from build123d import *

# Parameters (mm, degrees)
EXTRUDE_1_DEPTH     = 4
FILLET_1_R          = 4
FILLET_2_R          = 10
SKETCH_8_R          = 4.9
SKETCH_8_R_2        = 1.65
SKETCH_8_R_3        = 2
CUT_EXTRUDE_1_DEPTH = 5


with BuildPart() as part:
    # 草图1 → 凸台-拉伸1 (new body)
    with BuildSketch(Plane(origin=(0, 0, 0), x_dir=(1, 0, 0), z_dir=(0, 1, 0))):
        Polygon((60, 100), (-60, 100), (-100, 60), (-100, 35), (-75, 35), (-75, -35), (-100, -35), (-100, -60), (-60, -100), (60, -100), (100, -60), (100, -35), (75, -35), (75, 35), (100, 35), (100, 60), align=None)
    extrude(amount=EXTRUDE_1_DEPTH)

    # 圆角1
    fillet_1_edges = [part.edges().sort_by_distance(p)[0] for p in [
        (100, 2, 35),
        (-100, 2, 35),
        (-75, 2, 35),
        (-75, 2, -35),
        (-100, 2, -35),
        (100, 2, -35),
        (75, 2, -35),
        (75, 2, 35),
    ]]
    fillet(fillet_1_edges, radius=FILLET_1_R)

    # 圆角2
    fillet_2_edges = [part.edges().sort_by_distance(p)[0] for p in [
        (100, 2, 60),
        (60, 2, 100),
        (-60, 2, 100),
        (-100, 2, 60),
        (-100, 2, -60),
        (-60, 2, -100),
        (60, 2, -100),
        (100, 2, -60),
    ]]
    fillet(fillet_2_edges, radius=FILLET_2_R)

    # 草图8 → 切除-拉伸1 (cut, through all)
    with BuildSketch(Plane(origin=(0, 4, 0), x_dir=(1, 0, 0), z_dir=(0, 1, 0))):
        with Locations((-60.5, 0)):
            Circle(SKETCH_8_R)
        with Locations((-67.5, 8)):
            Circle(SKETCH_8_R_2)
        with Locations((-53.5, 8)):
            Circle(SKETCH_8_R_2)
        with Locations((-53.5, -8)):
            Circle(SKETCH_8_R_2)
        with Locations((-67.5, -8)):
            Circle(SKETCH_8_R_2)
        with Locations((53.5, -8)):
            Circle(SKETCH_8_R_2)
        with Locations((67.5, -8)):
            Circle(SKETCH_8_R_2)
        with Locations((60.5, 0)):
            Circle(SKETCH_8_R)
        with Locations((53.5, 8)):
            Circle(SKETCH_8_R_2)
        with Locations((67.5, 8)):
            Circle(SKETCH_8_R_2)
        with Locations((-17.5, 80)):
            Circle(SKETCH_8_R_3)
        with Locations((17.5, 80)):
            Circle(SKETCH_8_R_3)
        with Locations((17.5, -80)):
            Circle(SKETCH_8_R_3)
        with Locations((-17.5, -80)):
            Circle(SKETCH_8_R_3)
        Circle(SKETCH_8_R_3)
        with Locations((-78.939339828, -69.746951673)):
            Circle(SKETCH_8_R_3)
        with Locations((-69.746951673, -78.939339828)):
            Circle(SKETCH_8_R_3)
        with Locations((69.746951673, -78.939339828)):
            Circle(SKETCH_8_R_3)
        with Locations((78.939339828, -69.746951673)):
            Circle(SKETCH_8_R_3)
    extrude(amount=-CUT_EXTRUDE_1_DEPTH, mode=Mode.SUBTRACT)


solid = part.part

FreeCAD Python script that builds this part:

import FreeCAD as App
import Part
import Sketcher
from FreeCAD import Vector
Q = App.Units.Quantity


def edges_at(feature, points):
    """Names of the edges that pass closest to the given points."""
    edges = feature.Shape.Edges
    near = lambda p: min(range(len(edges)), key=lambda i: edges[i].distToShape(Part.Vertex(*p))[0])
    return sorted({f"Edge{near(p) + 1}" for p in points})

doc = App.newDocument("Part")
params = doc.addObject("Spreadsheet::Sheet", "Params")
for row, (alias, value) in enumerate([
    ("sketch1_width", "120 mm"),
    ("sketch1_width2", "25 mm"),
    ("sketch1_height", "70 mm"),
    ("pad1_length", "4 mm"),
    ("fillet_radius", "4 mm"),
    ("fillet2_radius", "10 mm"),
    ("sketch2_diameter", "4 mm"),
    ("sketch2_diameter2", "9.8 mm"),
    ("sketch2_diameter3", "3.3 mm"),
], start=1):
    params.set(f"A{row}", alias)
    params.set(f"B{row}", "=" + value)
    params.setAlias(f"B{row}", alias)

body = doc.addObject("PartDesign::Body", "Body")

# Sketch on XZ plane
sketch1 = body.newObject("Sketcher::SketchObject", "Sketch")
sketch1.AttachmentSupport = (doc.getObject("XZ_Plane"), [""])
sketch1.MapMode = "FlatFace"
sketch1.addGeometry([
    Part.LineSegment(Vector(60, -100, 0), Vector(-60, -100, 0)),  # 0
    Part.LineSegment(Vector(-60, -100, 0), Vector(-100, -60, 0)),  # 1
    Part.LineSegment(Vector(-100, -60, 0), Vector(-100, -35, 0)),  # 2
    Part.LineSegment(Vector(-100, -35, 0), Vector(-75, -35, 0)),  # 3
    Part.LineSegment(Vector(-75, -35, 0), Vector(-75, 35, 0)),  # 4
    Part.LineSegment(Vector(-75, 35, 0), Vector(-100, 35, 0)),  # 5
    Part.LineSegment(Vector(-100, 35, 0), Vector(-100, 60, 0)),  # 6
    Part.LineSegment(Vector(-100, 60, 0), Vector(-60, 100, 0)),  # 7
    Part.LineSegment(Vector(-60, 100, 0), Vector(60, 100, 0)),  # 8
    Part.LineSegment(Vector(60, 100, 0), Vector(100, 60, 0)),  # 9
    Part.LineSegment(Vector(100, 60, 0), Vector(100, 35, 0)),  # 10
    Part.LineSegment(Vector(100, 35, 0), Vector(75, 35, 0)),  # 11
    Part.LineSegment(Vector(75, 35, 0), Vector(75, -35, 0)),  # 12
    Part.LineSegment(Vector(75, -35, 0), Vector(100, -35, 0)),  # 13
    Part.LineSegment(Vector(100, -35, 0), Vector(100, -60, 0)),  # 14
    Part.LineSegment(Vector(100, -60, 0), Vector(60, -100, 0)),  # 15
], False)
sketch1.addConstraint([
    Sketcher.Constraint("Coincident", 0, 2, 1, 1),
    Sketcher.Constraint("Coincident", 1, 2, 2, 1),
    Sketcher.Constraint("Coincident", 2, 2, 3, 1),
    Sketcher.Constraint("Coincident", 3, 2, 4, 1),
    Sketcher.Constraint("Coincident", 4, 2, 5, 1),
    Sketcher.Constraint("Coincident", 5, 2, 6, 1),
    Sketcher.Constraint("Coincident", 6, 2, 7, 1),
    Sketcher.Constraint("Coincident", 7, 2, 8, 1),
    Sketcher.Constraint("Coincident", 8, 2, 9, 1),
    Sketcher.Constraint("Coincident", 9, 2, 10, 1),
    Sketcher.Constraint("Coincident", 10, 2, 11, 1),
    Sketcher.Constraint("Coincident", 11, 2, 12, 1),
    Sketcher.Constraint("Coincident", 12, 2, 13, 1),
    Sketcher.Constraint("Coincident", 13, 2, 14, 1),
    Sketcher.Constraint("Coincident", 14, 2, 15, 1),
    Sketcher.Constraint("Coincident", 15, 2, 0, 1),
    Sketcher.Constraint("Horizontal", 0),
    Sketcher.Constraint("Vertical", 2),
    Sketcher.Constraint("Horizontal", 3),
    Sketcher.Constraint("Vertical", 4),
    Sketcher.Constraint("Horizontal", 5),
    Sketcher.Constraint("Vertical", 6),
    Sketcher.Constraint("Horizontal", 8),
    Sketcher.Constraint("Vertical", 10),
    Sketcher.Constraint("Horizontal", 11),
    Sketcher.Constraint("Vertical", 12),
    Sketcher.Constraint("Horizontal", 13),
    Sketcher.Constraint("Vertical", 14),
    Sketcher.Constraint("Symmetric", 0, 2, 8, 2, -1, 1),
    Sketcher.Constraint("Symmetric", 1, 2, 9, 2, -1, 1),
    Sketcher.Constraint("Symmetric", 3, 2, 11, 2, -1, 1),
    Sketcher.Constraint("Symmetric", 5, 2, 13, 2, -1, 1),
    Sketcher.Constraint("Symmetric", 6, 2, 9, 2, -2),
    Sketcher.Constraint("Perpendicular", 1, 7),
    Sketcher.Constraint("Perpendicular", 9, 15),
    Sketcher.Constraint("Horizontal", 5, 2, 10, 2),
    Sketcher.Constraint("Horizontal", 1, 2, 14, 2),
    Sketcher.Constraint("Vertical", 0, 2, 7, 2),
    Sketcher.Constraint("Equal", 13, 2),
    Sketcher.Constraint("DistanceX", 0, 2, 0, 1, Q("120 mm")),
    Sketcher.Constraint("DistanceX", 3, 1, 3, 2, Q("25 mm")),
    Sketcher.Constraint("DistanceY", 4, 1, 4, 2, Q("70 mm")),
    Sketcher.Constraint("DistanceY", 0, 2, -1, 1, Q("100 mm")),
])
sketch1.setExpression("Constraints[39]", "Params.sketch1_width")
sketch1.setExpression("Constraints[40]", "Params.sketch1_width2")
sketch1.setExpression("Constraints[41]", "Params.sketch1_height")
pad1 = body.newObject("PartDesign::Pad", "Pad")
pad1.Profile = sketch1
pad1.setExpression("Length", "Params.pad1_length")
pad1.Reversed = True
doc.recompute()

fillet = body.newObject("PartDesign::Fillet", "Fillet")
fillet.Base = (pad1, edges_at(pad1, [
    (100, 2, 35),
    (-100, 2, 35),
    (-75, 2, 35),
    (-75, 2, -35),
    (-100, 2, -35),
    (100, 2, -35),
    (75, 2, -35),
    (75, 2, 35),
]))
fillet.setExpression("Radius", "Params.fillet_radius")
doc.recompute()

fillet2 = body.newObject("PartDesign::Fillet", "Fillet001")
fillet2.Base = (fillet, edges_at(fillet, [
    (100, 2, 60),
    (60, 2, 100),
    (-60, 2, 100),
    (-100, 2, 60),
    (-100, 2, -60),
    (-60, 2, -100),
    (60, 2, -100),
    (100, 2, -60),
]))
fillet2.setExpression("Radius", "Params.fillet2_radius")

# Sketch on XZ plane
sketch2 = body.newObject("Sketcher::SketchObject", "Sketch001")
sketch2.AttachmentSupport = (doc.getObject("XZ_Plane"), [""])
sketch2.MapMode = "FlatFace"
sketch2.AttachmentOffset = App.Placement(Vector(0, 0, -4), App.Rotation())
sketch2.addGeometry([
    Part.Circle(Vector(-60.5, 0, 0), Vector(0, 0, 1), 4.9),  # 0
    Part.Circle(Vector(-67.5, -8, 0), Vector(0, 0, 1), 1.65),  # 1
    Part.Circle(Vector(-53.5, -8, 0), Vector(0, 0, 1), 1.65),  # 2
    Part.Circle(Vector(-53.5, 8, 0), Vector(0, 0, 1), 1.65),  # 3
    Part.Circle(Vector(-67.5, 8, 0), Vector(0, 0, 1), 1.65),  # 4
    Part.Circle(Vector(53.5, 8, 0), Vector(0, 0, 1), 1.65),  # 5
    Part.Circle(Vector(67.5, 8, 0), Vector(0, 0, 1), 1.65),  # 6
    Part.Circle(Vector(60.5, 0, 0), Vector(0, 0, 1), 4.9),  # 7
    Part.Circle(Vector(53.5, -8, 0), Vector(0, 0, 1), 1.65),  # 8
    Part.Circle(Vector(67.5, -8, 0), Vector(0, 0, 1), 1.65),  # 9
    Part.Circle(Vector(-17.5, -80, 0), Vector(0, 0, 1), 2),  # 10
    Part.Circle(Vector(17.5, -80, 0), Vector(0, 0, 1), 2),  # 11
    Part.Circle(Vector(17.5, 80, 0), Vector(0, 0, 1), 2),  # 12
    Part.Circle(Vector(-17.5, 80, 0), Vector(0, 0, 1), 2),  # 13
    Part.Circle(Vector(0, 0, 0), Vector(0, 0, 1), 2),  # 14
    Part.Circle(Vector(-78.93934, 69.746952, 0), Vector(0, 0, 1), 2),  # 15
    Part.Circle(Vector(-69.746952, 78.93934, 0), Vector(0, 0, 1), 2),  # 16
    Part.Circle(Vector(69.746952, 78.93934, 0), Vector(0, 0, 1), 2),  # 17
    Part.Circle(Vector(78.93934, 69.746952, 0), Vector(0, 0, 1), 2),  # 18
], False)
sketch2.addConstraint([
    Sketcher.Constraint("Coincident", 14, 3, -1, 1),
    Sketcher.Constraint("Equal", 1, 2),
    Sketcher.Constraint("Equal", 2, 3),
    Sketcher.Constraint("Equal", 3, 4),
    Sketcher.Constraint("Equal", 4, 5),
    Sketcher.Constraint("Equal", 5, 6),
    Sketcher.Constraint("Equal", 0, 7),
    Sketcher.Constraint("Equal", 6, 8),
    Sketcher.Constraint("Equal", 8, 9),
    Sketcher.Constraint("Equal", 10, 11),
    Sketcher.Constraint("Equal", 11, 12),
    Sketcher.Constraint("Equal", 12, 13),
    Sketcher.Constraint("Equal", 13, 14),
    Sketcher.Constraint("Equal", 14, 15),
    Sketcher.Constraint("Equal", 15, 16),
    Sketcher.Constraint("Equal", 16, 17),
    Sketcher.Constraint("Equal", 17, 18),
    Sketcher.Constraint("Symmetric", 2, 3, 5, 3, -1, 1),
    Sketcher.Constraint("Symmetric", 1, 3, 6, 3, -1, 1),
    Sketcher.Constraint("Symmetric", 0, 3, 7, 3, -1, 1),
    Sketcher.Constraint("Symmetric", 3, 3, 8, 3, -1, 1),
    Sketcher.Constraint("Symmetric", 4, 3, 9, 3, -1, 1),
    Sketcher.Constraint("Symmetric", 10, 3, 12, 3, -1, 1),
    Sketcher.Constraint("Symmetric", 11, 3, 13, 3, -1, 1),
    Sketcher.Constraint("Symmetric", 3, 3, 5, 3, -2),
    Sketcher.Constraint("Symmetric", 4, 3, 6, 3, -2),
    Sketcher.Constraint("Symmetric", 10, 3, 11, 3, -2),
    Sketcher.Constraint("Symmetric", 16, 3, 17, 3, -2),
    Sketcher.Constraint("Symmetric", 15, 3, 18, 3, -2),
    Sketcher.Constraint("PointOnObject", 0, 3, -1),
    Sketcher.Constraint("Horizontal", 1, 3, 2, 3),
    Sketcher.Constraint("Diameter", 10, Q("4 mm")),
    Sketcher.Constraint("Diameter", 0, Q("9.8 mm")),
    Sketcher.Constraint("Diameter", 1, Q("3.3 mm")),
    Sketcher.Constraint("DistanceY", 1, 3, -1, 1, Q("8 mm")),
    Sketcher.Constraint("DistanceY", 10, 3, -1, 1, Q("80 mm")),
    Sketcher.Constraint("DistanceX", 1, 3, 0, 3, Q("7 mm")),
    Sketcher.Constraint("DistanceX", 0, 3, 2, 3, Q("7 mm")),
    Sketcher.Constraint("DistanceX", 3, 3, 5, 3, Q("107 mm")),
    Sketcher.Constraint("DistanceX", 2, 3, 10, 3, Q("36 mm")),
    Sketcher.Constraint("DistanceX", 15, 3, -1, 1, Q("78.93934 mm")),
    Sketcher.Constraint("DistanceY", -1, 1, 15, 3, Q("69.746952 mm")),
    Sketcher.Constraint("DistanceX", 16, 3, -1, 1, Q("69.746952 mm")),
    Sketcher.Constraint("DistanceY", -1, 1, 16, 3, Q("78.93934 mm")),
])
sketch2.setExpression("Constraints[31]", "Params.sketch2_diameter")
sketch2.setExpression("Constraints[32]", "Params.sketch2_diameter2")
sketch2.setExpression("Constraints[33]", "Params.sketch2_diameter3")
pocket1 = body.newObject("PartDesign::Pocket", "Pocket")
pocket1.Profile = sketch2
pocket1.Type = "ThroughAll"
pocket1.Reversed = True

doc.recompute()
